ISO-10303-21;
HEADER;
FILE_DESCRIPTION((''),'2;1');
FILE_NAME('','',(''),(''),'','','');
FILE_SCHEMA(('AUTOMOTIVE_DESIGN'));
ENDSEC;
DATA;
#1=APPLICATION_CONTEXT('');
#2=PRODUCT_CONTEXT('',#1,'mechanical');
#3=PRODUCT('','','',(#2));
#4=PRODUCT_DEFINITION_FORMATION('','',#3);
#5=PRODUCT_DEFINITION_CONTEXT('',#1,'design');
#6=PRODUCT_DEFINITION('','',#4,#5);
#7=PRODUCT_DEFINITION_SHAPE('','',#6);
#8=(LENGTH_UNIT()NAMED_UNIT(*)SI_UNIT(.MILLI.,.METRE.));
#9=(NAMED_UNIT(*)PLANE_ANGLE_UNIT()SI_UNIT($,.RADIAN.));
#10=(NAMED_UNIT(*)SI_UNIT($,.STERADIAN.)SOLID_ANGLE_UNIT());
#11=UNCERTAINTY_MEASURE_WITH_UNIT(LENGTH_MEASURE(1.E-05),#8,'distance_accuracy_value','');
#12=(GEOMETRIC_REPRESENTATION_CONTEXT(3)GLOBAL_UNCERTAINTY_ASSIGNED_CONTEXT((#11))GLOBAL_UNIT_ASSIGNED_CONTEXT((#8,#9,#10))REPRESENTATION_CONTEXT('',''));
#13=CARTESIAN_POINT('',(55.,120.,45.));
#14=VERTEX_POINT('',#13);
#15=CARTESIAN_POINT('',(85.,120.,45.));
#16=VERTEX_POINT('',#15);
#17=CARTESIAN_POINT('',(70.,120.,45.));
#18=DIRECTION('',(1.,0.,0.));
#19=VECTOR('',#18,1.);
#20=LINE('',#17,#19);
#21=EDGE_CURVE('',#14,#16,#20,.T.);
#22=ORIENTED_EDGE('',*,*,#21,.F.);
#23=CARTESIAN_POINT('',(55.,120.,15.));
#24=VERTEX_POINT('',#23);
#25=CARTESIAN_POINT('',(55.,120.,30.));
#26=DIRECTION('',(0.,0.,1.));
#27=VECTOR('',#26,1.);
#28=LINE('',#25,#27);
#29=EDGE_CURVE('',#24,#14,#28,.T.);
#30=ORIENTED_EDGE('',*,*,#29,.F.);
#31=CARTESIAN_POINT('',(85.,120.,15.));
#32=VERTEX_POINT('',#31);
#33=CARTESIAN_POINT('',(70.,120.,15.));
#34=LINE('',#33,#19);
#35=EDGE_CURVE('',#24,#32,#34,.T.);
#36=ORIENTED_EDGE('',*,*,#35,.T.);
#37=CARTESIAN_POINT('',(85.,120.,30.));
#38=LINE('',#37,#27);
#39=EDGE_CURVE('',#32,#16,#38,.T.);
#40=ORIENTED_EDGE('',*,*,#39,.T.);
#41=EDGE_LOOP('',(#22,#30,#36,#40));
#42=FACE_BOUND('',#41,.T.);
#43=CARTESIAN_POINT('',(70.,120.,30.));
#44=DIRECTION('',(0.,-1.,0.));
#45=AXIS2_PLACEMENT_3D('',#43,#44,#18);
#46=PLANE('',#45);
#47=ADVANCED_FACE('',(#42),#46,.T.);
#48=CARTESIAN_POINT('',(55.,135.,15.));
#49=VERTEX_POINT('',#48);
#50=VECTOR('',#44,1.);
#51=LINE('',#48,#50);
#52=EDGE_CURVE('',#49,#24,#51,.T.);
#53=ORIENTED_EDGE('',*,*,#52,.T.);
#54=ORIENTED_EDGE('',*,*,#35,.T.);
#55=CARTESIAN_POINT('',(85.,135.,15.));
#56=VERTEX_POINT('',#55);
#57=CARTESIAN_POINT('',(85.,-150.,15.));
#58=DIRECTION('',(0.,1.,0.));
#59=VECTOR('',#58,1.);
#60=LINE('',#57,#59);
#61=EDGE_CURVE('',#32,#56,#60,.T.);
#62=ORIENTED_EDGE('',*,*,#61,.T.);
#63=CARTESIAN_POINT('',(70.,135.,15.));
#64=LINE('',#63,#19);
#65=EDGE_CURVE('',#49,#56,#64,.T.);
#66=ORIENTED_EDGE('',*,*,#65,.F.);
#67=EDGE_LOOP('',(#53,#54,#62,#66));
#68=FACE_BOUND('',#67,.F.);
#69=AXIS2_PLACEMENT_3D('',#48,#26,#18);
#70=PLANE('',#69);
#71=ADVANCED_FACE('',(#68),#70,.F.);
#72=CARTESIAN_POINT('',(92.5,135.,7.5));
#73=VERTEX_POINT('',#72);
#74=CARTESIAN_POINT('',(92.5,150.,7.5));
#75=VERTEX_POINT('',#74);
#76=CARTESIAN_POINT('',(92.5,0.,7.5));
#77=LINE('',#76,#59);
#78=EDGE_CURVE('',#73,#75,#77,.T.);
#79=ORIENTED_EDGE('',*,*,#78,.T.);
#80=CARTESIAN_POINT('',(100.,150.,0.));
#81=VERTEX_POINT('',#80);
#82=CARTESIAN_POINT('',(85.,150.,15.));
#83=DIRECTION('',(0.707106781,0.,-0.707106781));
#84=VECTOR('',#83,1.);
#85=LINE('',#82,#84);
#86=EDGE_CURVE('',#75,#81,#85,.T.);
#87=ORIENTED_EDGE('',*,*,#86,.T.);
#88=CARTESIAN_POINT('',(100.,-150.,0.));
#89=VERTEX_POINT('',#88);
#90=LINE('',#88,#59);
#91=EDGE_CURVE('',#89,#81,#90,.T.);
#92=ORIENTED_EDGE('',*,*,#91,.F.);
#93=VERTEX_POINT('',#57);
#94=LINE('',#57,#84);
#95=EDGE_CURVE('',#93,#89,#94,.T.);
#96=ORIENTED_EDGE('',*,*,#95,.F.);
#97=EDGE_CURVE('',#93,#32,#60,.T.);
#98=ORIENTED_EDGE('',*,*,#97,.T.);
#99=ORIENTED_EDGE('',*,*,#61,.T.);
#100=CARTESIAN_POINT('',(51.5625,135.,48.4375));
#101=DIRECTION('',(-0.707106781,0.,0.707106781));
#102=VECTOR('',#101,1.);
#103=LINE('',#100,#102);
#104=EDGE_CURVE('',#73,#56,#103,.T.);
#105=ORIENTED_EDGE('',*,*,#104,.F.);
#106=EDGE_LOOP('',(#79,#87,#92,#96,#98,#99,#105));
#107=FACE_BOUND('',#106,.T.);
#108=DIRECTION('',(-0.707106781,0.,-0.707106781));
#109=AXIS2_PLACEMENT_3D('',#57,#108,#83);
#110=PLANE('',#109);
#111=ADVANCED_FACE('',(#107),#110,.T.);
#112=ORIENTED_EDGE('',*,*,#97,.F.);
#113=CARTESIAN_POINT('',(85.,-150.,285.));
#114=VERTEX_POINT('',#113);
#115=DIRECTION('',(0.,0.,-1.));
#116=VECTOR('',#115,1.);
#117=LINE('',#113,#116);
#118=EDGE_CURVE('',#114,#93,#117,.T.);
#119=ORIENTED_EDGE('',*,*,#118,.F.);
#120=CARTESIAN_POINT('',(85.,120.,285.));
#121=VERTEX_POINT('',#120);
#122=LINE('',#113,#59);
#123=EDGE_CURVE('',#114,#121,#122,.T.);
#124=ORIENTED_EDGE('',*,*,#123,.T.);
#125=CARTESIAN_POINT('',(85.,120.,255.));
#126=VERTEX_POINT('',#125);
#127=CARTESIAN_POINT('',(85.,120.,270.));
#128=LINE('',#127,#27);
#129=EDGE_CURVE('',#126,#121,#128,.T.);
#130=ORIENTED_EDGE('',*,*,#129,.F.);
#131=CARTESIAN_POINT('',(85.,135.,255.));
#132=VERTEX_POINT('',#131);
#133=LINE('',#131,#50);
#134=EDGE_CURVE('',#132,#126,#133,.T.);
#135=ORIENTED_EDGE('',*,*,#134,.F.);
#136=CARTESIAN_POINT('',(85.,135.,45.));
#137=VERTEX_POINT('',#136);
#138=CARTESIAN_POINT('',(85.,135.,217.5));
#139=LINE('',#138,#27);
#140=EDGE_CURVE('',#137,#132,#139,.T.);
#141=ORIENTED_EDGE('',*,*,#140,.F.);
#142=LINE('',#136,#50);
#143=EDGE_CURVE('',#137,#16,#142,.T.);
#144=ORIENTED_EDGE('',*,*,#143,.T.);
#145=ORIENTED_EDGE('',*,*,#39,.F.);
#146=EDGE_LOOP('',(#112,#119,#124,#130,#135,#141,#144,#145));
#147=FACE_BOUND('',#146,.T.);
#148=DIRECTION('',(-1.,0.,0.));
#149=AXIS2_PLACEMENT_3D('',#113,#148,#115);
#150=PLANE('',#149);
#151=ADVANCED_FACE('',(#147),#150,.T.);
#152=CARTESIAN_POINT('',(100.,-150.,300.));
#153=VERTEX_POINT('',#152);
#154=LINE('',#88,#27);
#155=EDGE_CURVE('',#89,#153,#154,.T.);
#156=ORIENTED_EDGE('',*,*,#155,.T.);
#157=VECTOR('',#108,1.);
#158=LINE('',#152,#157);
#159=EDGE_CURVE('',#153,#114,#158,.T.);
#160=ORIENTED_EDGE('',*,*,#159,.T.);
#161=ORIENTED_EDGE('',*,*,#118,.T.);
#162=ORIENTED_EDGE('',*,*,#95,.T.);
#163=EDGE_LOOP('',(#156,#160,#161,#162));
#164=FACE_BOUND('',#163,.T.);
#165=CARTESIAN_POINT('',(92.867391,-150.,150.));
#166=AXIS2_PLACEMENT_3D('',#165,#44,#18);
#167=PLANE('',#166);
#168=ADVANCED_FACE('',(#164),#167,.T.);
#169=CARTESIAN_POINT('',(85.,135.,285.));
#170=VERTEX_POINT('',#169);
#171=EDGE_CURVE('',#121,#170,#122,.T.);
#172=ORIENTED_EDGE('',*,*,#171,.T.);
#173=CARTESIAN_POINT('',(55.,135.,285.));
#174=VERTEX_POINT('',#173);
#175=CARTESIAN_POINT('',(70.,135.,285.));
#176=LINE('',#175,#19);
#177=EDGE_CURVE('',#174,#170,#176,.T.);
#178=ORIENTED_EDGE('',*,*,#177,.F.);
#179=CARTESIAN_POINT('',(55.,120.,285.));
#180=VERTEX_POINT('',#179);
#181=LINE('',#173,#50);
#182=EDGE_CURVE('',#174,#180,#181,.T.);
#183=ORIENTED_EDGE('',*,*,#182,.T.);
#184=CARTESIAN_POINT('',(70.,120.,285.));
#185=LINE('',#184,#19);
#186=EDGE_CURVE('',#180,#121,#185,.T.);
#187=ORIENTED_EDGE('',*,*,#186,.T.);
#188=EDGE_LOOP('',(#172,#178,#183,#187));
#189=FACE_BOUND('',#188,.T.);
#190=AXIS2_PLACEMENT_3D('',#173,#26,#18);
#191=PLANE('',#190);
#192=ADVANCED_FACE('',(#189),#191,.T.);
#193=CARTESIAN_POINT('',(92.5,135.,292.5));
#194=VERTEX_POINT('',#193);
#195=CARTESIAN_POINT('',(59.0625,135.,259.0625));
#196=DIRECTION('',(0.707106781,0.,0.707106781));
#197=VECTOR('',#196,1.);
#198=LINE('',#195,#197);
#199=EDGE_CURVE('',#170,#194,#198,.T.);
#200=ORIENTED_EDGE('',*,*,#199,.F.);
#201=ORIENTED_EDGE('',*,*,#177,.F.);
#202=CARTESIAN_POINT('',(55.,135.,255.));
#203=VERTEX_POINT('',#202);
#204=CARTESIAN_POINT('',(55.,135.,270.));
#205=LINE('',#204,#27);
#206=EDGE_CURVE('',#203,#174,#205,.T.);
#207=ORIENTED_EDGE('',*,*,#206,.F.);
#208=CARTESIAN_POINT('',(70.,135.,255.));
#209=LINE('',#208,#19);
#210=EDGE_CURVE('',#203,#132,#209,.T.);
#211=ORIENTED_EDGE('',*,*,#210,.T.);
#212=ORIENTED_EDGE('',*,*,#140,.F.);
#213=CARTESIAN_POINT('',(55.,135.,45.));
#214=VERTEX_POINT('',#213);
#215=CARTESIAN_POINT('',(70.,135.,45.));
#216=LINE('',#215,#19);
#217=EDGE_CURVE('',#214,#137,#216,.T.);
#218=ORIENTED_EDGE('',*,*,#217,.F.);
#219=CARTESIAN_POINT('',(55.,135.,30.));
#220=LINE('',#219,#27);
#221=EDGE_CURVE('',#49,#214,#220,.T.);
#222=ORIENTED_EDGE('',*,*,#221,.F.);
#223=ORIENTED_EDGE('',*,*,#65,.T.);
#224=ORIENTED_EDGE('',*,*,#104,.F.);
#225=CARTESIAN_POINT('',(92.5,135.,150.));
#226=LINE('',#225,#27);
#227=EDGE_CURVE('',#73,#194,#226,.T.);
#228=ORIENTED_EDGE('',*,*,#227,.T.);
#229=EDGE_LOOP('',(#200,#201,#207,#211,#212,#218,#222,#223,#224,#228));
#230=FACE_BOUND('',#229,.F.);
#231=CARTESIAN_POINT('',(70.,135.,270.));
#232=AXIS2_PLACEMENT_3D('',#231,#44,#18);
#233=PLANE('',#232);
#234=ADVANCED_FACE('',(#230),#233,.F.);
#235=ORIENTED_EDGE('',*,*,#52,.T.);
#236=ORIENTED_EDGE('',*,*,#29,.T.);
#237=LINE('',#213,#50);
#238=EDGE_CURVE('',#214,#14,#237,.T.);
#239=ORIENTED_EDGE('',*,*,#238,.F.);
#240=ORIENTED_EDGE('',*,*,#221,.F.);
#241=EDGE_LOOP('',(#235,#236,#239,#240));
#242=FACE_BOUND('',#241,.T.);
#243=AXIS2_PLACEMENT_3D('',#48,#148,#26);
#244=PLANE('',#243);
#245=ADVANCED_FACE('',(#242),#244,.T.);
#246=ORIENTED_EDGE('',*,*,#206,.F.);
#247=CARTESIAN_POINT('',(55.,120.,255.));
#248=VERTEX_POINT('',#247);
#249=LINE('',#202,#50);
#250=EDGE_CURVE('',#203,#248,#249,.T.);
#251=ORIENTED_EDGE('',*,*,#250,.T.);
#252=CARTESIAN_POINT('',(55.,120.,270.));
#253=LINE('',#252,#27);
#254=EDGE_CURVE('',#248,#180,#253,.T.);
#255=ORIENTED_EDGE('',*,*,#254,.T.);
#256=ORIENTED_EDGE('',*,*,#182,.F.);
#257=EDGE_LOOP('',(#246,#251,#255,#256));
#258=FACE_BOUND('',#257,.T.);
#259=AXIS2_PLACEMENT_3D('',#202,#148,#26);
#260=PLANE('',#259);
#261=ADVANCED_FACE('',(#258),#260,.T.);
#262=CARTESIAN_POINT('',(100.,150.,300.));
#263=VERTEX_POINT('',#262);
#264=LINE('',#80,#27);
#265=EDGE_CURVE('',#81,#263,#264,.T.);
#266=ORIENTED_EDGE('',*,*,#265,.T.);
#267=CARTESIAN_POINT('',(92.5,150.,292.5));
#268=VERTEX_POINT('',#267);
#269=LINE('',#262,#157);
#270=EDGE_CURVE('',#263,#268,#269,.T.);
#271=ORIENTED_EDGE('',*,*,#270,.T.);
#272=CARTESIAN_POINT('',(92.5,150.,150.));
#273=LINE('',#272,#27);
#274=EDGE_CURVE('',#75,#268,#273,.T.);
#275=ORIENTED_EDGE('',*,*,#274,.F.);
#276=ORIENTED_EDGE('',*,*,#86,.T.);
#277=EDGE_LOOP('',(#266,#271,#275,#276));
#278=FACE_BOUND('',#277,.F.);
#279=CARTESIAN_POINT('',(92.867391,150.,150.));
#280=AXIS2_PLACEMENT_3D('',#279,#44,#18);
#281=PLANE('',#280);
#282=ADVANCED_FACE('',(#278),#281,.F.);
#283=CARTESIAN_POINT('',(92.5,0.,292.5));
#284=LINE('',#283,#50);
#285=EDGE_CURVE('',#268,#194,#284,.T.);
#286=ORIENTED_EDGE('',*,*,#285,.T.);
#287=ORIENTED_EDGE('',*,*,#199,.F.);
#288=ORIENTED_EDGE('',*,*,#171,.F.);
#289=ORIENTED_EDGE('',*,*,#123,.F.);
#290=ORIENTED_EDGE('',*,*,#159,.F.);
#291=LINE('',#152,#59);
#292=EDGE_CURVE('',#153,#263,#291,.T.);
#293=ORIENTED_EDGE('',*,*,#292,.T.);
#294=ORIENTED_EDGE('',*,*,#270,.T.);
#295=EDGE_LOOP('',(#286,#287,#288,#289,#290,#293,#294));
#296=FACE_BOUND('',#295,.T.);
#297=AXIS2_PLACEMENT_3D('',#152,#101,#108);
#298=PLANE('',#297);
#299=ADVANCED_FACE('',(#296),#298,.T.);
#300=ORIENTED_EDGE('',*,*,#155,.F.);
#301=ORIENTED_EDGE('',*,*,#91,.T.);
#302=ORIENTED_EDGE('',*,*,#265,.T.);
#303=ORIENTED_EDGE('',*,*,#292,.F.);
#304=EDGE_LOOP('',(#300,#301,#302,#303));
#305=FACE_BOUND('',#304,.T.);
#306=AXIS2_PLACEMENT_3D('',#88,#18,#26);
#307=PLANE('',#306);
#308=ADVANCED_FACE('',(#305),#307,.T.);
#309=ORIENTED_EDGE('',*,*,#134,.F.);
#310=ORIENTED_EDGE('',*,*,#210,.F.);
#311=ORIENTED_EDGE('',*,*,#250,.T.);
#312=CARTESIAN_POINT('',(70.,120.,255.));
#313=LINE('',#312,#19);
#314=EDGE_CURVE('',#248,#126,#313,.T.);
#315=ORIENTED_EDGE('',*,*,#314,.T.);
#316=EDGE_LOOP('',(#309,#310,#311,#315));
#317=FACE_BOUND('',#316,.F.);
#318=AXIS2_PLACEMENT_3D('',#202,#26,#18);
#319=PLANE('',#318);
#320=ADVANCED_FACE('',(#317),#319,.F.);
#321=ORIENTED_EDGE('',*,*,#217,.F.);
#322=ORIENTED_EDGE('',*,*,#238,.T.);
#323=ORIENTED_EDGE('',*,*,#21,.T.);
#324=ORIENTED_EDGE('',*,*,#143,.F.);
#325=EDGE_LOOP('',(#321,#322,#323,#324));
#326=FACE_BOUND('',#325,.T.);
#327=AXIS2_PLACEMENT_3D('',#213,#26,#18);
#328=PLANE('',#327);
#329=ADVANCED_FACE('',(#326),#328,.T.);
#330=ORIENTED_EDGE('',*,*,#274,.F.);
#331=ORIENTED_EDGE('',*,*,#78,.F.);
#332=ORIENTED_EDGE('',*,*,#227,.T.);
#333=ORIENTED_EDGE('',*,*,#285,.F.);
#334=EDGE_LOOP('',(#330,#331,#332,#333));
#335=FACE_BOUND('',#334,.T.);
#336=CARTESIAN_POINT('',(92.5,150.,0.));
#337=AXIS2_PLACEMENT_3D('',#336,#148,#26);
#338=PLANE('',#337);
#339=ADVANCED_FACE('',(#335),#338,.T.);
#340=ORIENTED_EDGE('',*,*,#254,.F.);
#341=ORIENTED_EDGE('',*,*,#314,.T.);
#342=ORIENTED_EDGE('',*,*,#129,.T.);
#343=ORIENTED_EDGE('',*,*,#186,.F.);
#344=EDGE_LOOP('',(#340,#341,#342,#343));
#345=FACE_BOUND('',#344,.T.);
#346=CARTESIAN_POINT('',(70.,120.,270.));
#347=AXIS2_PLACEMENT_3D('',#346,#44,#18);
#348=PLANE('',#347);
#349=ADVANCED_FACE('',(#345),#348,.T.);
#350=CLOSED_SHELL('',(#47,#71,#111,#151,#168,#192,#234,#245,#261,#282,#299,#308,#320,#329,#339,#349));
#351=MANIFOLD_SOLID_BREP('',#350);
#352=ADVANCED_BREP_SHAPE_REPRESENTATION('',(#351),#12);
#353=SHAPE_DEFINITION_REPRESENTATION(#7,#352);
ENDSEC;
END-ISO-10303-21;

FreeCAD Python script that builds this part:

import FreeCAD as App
import Part
import Sketcher
from FreeCAD import Vector
Q = App.Units.Quantity

doc = App.newDocument("Part")
body = doc.addObject("PartDesign::Body", "Body")

# Sketch on XZ plane
sketch1 = body.newObject("Sketcher::SketchObject", "Sketch")
sketch1.AttachmentSupport = (doc.getObject("XZ_Plane"), [""])
sketch1.MapMode = "FlatFace"
sketch1.AttachmentOffset = App.Placement(Vector(0, 0, 150), App.Rotation())
sketch1.addGeometry([
    Part.LineSegment(Vector(85, 15, 0), Vector(100, 0, 0)),
    Part.LineSegment(Vector(100, 0, 0), Vector(100, 300, 0)),
    Part.LineSegment(Vector(100, 300, 0), Vector(85, 285, 0)),
    Part.LineSegment(Vector(85, 285, 0), Vector(85, 15, 0)),
], False)
sketch1.addConstraint([
    Sketcher.Constraint("Coincident", 0, 2, 1, 1),
    Sketcher.Constraint("Coincident", 1, 2, 2, 1),
    Sketcher.Constraint("Coincident", 2, 2, 3, 1),
    Sketcher.Constraint("Coincident", 3, 2, 0, 1),
    Sketcher.Constraint("Vertical", 1),
    Sketcher.Constraint("Vertical", 3),
    Sketcher.Constraint("PointOnObject", 0, 2, -1),
    Sketcher.Constraint("Perpendicular", 0, 2),
    Sketcher.Constraint("Equal", 0, 2),
    Sketcher.Constraint("DistanceY", 1, 1, 1, 2, Q("300 mm")),
    Sketcher.Constraint("DistanceY", 3, 2, 3, 1, Q("270 mm")),
    Sketcher.Constraint("DistanceX", -1, 1, 0, 2, Q("100 mm")),
])
pad1 = body.newObject("PartDesign::Pad", "Pad")
pad1.Profile = sketch1
pad1.Length = 300
pad1.Reversed = True

# Sketch on XZ plane
sketch2 = body.newObject("Sketcher::SketchObject", "Sketch001")
sketch2.AttachmentSupport = (doc.getObject("XZ_Plane"), [""])
sketch2.MapMode = "FlatFace"
sketch2.AttachmentOffset = App.Placement(Vector(0, 0, -150), App.Rotation())
sketch2.addGeometry([
    Part.LineSegment(Vector(80, 300, 0), Vector(80, 0, 0)),
    Part.LineSegment(Vector(80, 0, 0), Vector(92, 0, 0)),
    Part.LineSegment(Vector(92, 0, 0), Vector(92, 300, 0)),
    Part.LineSegment(Vector(92, 300, 0), Vector(80, 300, 0)),
], False)
sketch2.addConstraint([
    Sketcher.Constraint("Coincident", 0, 2, 1, 1),
    Sketcher.Constraint("Coincident", 1, 2, 2, 1),
    Sketcher.Constraint("Coincident", 2, 2, 3, 1),
    Sketcher.Constraint("Coincident", 3, 2, 0, 1),
    Sketcher.Constraint("Vertical", 0),
    Sketcher.Constraint("Horizontal", 1),
    Sketcher.Constraint("Vertical", 2),
    Sketcher.Constraint("Horizontal", 3),
    Sketcher.Constraint("PointOnObject", 0, 2, -1),
    Sketcher.Constraint("DistanceY", 0, 2, 0, 1, Q("300 mm")),
    Sketcher.Constraint("DistanceX", 1, 1, 1, 2, Q("12.5 mm")),
    Sketcher.Constraint("DistanceX", -1, 1, 0, 2, Q("80 mm")),
])
pocket1 = body.newObject("PartDesign::Pocket", "Pocket")
pocket1.Profile = sketch2
pocket1.Length = 15
pocket1.Reversed = True

# Sketch on XZ plane
sketch3 = body.newObject("Sketcher::SketchObject", "Sketch002")
sketch3.AttachmentSupport = (doc.getObject("XZ_Plane"), [""])
sketch3.MapMode = "FlatFace"
sketch3.AttachmentOffset = App.Placement(Vector(0, 0, -135), App.Rotation())
sketch3.addGeometry([
    Part.LineSegment(Vector(55, 285, 0), Vector(55, 255, 0)),  # 0
    Part.LineSegment(Vector(55, 255, 0), Vector(85, 255, 0)),  # 1
    Part.LineSegment(Vector(85, 255, 0), Vector(85, 285, 0)),  # 2
    Part.LineSegment(Vector(85, 285, 0), Vector(55, 285, 0)),  # 3
    Part.LineSegment(Vector(55, 45, 0), Vector(55, 15, 0)),  # 4
    Part.LineSegment(Vector(55, 15, 0), Vector(85, 15, 0)),  # 5
    Part.LineSegment(Vector(85, 15, 0), Vector(85, 45, 0)),  # 6
    Part.LineSegment(Vector(85, 45, 0), Vector(55, 45, 0)),  # 7
], False)
sketch3.addConstraint([
    Sketcher.Constraint("Coincident", 0, 2, 1, 1),
    Sketcher.Constraint("Coincident", 1, 2, 2, 1),
    Sketcher.Constraint("Coincident", 2, 2, 3, 1),
    Sketcher.Constraint("Coincident", 3, 2, 0, 1),
    Sketcher.Constraint("Coincident", 4, 2, 5, 1),
    Sketcher.Constraint("Coincident", 5, 2, 6, 1),
    Sketcher.Constraint("Coincident", 6, 2, 7, 1),
    Sketcher.Constraint("Coincident", 7, 2, 4, 1),
    Sketcher.Constraint("Vertical", 0),
    Sketcher.Constraint("Horizontal", 1),
    Sketcher.Constraint("Vertical", 2),
    Sketcher.Constraint("Horizontal", 3),
    Sketcher.Constraint("Vertical", 4),
    Sketcher.Constraint("Horizontal", 5),
    Sketcher.Constraint("Vertical", 6),
    Sketcher.Constraint("Horizontal", 7),
    Sketcher.Constraint("Vertical", 3, 2, 4, 2),
    Sketcher.Constraint("Vertical", 2, 2, 5, 2),
    Sketcher.Constraint("Equal", 7, 0),
    Sketcher.Constraint("Equal", 2, 4),
    Sketcher.Constraint("DistanceX", 1, 1, 1, 2, Q("30 mm")),
    Sketcher.Constraint("DistanceX", -1, 1, 0, 2, Q("55 mm")),
    Sketcher.Constraint("DistanceY", -1, 1, 0, 2, Q("255 mm")),
    Sketcher.Constraint("DistanceY", -1, 1, 4, 2, Q("15 mm")),
])
pad2 = body.newObject("PartDesign::Pad", "Pad001")
pad2.Profile = sketch3
pad2.Length = 15

doc.recompute()
